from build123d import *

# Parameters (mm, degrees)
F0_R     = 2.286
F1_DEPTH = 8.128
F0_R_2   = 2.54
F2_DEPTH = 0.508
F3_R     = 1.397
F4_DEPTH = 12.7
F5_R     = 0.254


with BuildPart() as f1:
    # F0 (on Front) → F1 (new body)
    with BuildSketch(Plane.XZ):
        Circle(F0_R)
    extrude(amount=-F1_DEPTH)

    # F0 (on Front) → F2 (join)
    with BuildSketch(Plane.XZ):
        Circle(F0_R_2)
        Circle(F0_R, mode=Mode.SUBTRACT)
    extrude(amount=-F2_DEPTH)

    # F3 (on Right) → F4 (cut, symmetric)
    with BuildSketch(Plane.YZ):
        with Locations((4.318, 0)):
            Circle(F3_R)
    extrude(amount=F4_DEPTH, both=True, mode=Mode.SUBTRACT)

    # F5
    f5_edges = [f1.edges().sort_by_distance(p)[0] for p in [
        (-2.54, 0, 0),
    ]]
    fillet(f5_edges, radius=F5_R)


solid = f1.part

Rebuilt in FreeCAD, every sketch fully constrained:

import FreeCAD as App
import Part
import Sketcher
from FreeCAD import Vector
Q = App.Units.Quantity


def edges_at(feature, points):
    """Names of the edges that pass closest to the given points."""
    edges = feature.Shape.Edges
    near = lambda p: min(range(len(edges)), key=lambda i: edges[i].distToShape(Part.Vertex(*p))[0])
    return sorted({f"Edge{near(p) + 1}" for p in points})

doc = App.newDocument("Part")
body = doc.addObject("PartDesign::Body", "Body")

# Sketch on XZ plane
sketch1 = body.newObject("Sketcher::SketchObject", "Sketch")
sketch1.AttachmentSupport = (doc.getObject("XZ_Plane"), [""])
sketch1.MapMode = "FlatFace"
sketch1.addGeometry(Part.Circle(Vector(0, 0, 0), Vector(0, 0, 1), 2.3), False)
sketch1.addConstraint(Sketcher.Constraint("Coincident", 0, 3, -1, 1))
sketch1.addConstraint(Sketcher.Constraint("Diameter", 0, Q("0.18 in")))
pad1 = body.newObject("PartDesign::Pad", "Pad")
pad1.Profile = sketch1
pad1.Length = Q("0.32 in")
pad1.Reversed = True

# Sketch on XZ plane
sketch2 = body.newObject("Sketcher::SketchObject", "Sketch001")
sketch2.AttachmentSupport = (doc.getObject("XZ_Plane"), [""])
sketch2.MapMode = "FlatFace"
sketch2.addGeometry(Part.Circle(Vector(0, 0, 0), Vector(0, 0, 1), 2.5), False)
sketch2.addGeometry(Part.Circle(Vector(0, 0, 0), Vector(0, 0, 1), 2.3), False)
sketch2.addConstraint(Sketcher.Constraint("Coincident", 0, 3, -1, 1))
sketch2.addConstraint(Sketcher.Constraint("Coincident", 1, 3, -1, 1))
sketch2.addConstraint(Sketcher.Constraint("Diameter", 0, Q("0.2 in")))
sketch2.addConstraint(Sketcher.Constraint("Diameter", 1, Q("0.18 in")))
pad2 = body.newObject("PartDesign::Pad", "Pad001")
pad2.Profile = sketch2
pad2.Length = Q("0.02 in")
pad2.Reversed = True

# Sketch on YZ plane
sketch3 = body.newObject("Sketcher::SketchObject", "Sketch002")
sketch3.AttachmentSupport = (doc.getObject("YZ_Plane"), [""])
sketch3.MapMode = "FlatFace"
sketch3.addGeometry(Part.Circle(Vector(4.3, 0, 0), Vector(0, 0, 1), 1.4), False)
sketch3.addConstraint(Sketcher.Constraint("PointOnObject", 0, 3, -1))
sketch3.addConstraint(Sketcher.Constraint("Diameter", 0, Q("0.11 in")))
sketch3.addConstraint(Sketcher.Constraint("DistanceX", -1, 1, 0, 3, Q("0.17 in")))
pocket1 = body.newObject("PartDesign::Pocket", "Pocket")
pocket1.Profile = sketch3
pocket1.Length = Q("1 in")
pocket1.Midplane = True
doc.recompute()

fillet = body.newObject("PartDesign::Fillet", "Fillet")
fillet.Base = (pocket1, edges_at(pocket1, [(-2.54, 0, 0)]))
fillet.Radius = Q("0.01 in")

doc.recompute()
